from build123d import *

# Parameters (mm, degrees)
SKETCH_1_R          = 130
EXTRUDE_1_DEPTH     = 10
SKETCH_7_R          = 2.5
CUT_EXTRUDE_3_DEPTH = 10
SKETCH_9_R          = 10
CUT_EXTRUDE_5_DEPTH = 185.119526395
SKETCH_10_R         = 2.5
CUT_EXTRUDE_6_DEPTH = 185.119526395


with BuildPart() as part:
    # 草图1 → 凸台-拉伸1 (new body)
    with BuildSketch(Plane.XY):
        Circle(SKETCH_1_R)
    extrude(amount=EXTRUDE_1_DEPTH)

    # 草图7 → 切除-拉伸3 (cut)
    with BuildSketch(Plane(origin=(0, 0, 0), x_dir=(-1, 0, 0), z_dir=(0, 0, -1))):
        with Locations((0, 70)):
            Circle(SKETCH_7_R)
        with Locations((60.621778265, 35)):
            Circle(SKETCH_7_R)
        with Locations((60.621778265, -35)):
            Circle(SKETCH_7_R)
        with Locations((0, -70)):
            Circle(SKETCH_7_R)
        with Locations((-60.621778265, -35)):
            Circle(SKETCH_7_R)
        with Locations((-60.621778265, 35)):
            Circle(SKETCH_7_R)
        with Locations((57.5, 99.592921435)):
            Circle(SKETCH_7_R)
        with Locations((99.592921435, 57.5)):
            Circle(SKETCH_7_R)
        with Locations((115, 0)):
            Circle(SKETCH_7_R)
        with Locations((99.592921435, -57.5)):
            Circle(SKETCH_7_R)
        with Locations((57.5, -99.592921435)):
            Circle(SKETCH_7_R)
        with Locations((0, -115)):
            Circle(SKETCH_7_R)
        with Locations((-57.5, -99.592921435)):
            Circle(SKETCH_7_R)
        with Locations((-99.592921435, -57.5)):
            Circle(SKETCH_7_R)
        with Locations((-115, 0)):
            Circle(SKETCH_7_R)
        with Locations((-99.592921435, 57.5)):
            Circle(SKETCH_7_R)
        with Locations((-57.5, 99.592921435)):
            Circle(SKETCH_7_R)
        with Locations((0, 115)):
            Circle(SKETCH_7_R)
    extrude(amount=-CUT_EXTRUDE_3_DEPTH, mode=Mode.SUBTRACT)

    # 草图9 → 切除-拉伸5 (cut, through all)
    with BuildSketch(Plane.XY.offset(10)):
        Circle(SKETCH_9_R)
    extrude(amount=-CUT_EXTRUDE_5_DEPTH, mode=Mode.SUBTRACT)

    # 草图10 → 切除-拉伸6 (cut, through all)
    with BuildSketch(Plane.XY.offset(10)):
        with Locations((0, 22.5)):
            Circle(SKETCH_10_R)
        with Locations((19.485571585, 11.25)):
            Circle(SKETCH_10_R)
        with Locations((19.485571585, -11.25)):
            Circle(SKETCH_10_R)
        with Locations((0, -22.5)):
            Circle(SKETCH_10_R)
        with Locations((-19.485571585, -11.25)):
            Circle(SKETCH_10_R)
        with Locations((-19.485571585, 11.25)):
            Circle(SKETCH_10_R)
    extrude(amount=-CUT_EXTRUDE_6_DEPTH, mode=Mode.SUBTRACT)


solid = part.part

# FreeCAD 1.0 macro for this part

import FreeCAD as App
import Part
import Sketcher

V = App.Vector
Q = App.Units.Quantity

doc = App.newDocument("Part")
body = doc.addObject("PartDesign::Body", "Body")

# Sketch on XY plane
sketch1 = body.newObject("Sketcher::SketchObject", "Sketch")
sketch1.AttachmentSupport = (doc.getObject("XY_Plane"), [""])
sketch1.MapMode = "FlatFace"
sketch1.addGeometry(Part.Circle(V(0, 0, 0), V(0, 0, 1), 130), False)
sketch1.addConstraint(Sketcher.Constraint("Coincident", 0, 3, -1, 1))
sketch1.addConstraint(Sketcher.Constraint("Diameter", 0, Q("260 mm")))
pad1 = body.newObject("PartDesign::Pad", "Pad")
pad1.Profile = sketch1
pad1.Length = 10

# Sketch on XY plane
sketch2 = body.newObject("Sketcher::SketchObject", "Sketch001")
sketch2.AttachmentSupport = (doc.getObject("XY_Plane"), [""])
sketch2.MapMode = "FlatFace"
sketch2.addGeometry(Part.Circle(V(0, 70, 0), V(0, 0, 1), 2.5), False)
sketch2.addGeometry(Part.Circle(V(-60.6, 35, 0), V(0, 0, 1), 2.5), False)
sketch2.addGeometry(Part.Circle(V(-60.6, -35, 0), V(0, 0, 1), 2.5), False)
sketch2.addGeometry(Part.Circle(V(0, -70, 0), V(0, 0, 1), 2.5), False)
sketch2.addGeometry(Part.Circle(V(60.6, -35, 0), V(0, 0, 1), 2.5), False)
sketch2.addGeometry(Part.Circle(V(60.6, 35, 0), V(0, 0, 1), 2.5), False)
sketch2.addGeometry(Part.Circle(V(-57.5, 99.6, 0), V(0, 0, 1), 2.5), False)
sketch2.addGeometry(Part.Circle(V(-99.6, 57.5, 0), V(0, 0, 1), 2.5), False)
sketch2.addGeometry(Part.Circle(V(-115, 0, 0), V(0, 0, 1), 2.5), False)
sketch2.addGeometry(Part.Circle(V(-99.6, -57.5, 0), V(0, 0, 1), 2.5), False)
sketch2.addGeometry(Part.Circle(V(-57.5, -99.6, 0), V(0, 0, 1), 2.5), False)
sketch2.addGeometry(Part.Circle(V(0, -115, 0), V(0, 0, 1), 2.5), False)
sketch2.addGeometry(Part.Circle(V(57.5, -99.6, 0), V(0, 0, 1), 2.5), False)
sketch2.addGeometry(Part.Circle(V(99.6, -57.5, 0), V(0, 0, 1), 2.5), False)
sketch2.addGeometry(Part.Circle(V(115, 0, 0), V(0, 0, 1), 2.5), False)
sketch2.addGeometry(Part.Circle(V(99.6, 57.5, 0), V(0, 0, 1), 2.5), False)
sketch2.addGeometry(Part.Circle(V(57.5, 99.6, 0), V(0, 0, 1), 2.5), False)
sketch2.addGeometry(Part.Circle(V(0, 115, 0), V(0, 0, 1), 2.5), False)
sketch2.addConstraint(Sketcher.Constraint("Equal", 0, 1))
sketch2.addConstraint(Sketcher.Constraint("Equal", 1, 2))
sketch2.addConstraint(Sketcher.Constraint("Equal", 2, 3))
sketch2.addConstraint(Sketcher.Constraint("Equal", 3, 4))
sketch2.addConstraint(Sketcher.Constraint("Equal", 4, 5))
sketch2.addConstraint(Sketcher.Constraint("Equal", 5, 6))
sketch2.addConstraint(Sketcher.Constraint("Equal", 6, 7))
sketch2.addConstraint(Sketcher.Constraint("Equal", 7, 8))
sketch2.addConstraint(Sketcher.Constraint("Equal", 8, 9))
sketch2.addConstraint(Sketcher.Constraint("Equal", 9, 10))
sketch2.addConstraint(Sketcher.Constraint("Equal", 10, 11))
sketch2.addConstraint(Sketcher.Constraint("Equal", 11, 12))
sketch2.addConstraint(Sketcher.Constraint("Equal", 12, 13))
sketch2.addConstraint(Sketcher.Constraint("Equal", 13, 14))
sketch2.addConstraint(Sketcher.Constraint("Equal", 14, 15))
sketch2.addConstraint(Sketcher.Constraint("Equal", 15, 16))
sketch2.addConstraint(Sketcher.Constraint("Equal", 16, 17))
sketch2.addConstraint(Sketcher.Constraint("Symmetric", 0, 3, 3, 3, -1, 1))
sketch2.addConstraint(Sketcher.Constraint("Symmetric", 1, 3, 4, 3, -1, 1))
sketch2.addConstraint(Sketcher.Constraint("Symmetric", 2, 3, 5, 3, -1, 1))
sketch2.addConstraint(Sketcher.Constraint("Symmetric", 6, 3, 12, 3, -1, 1))
sketch2.addConstraint(Sketcher.Constraint("Symmetric", 7, 3, 13, 3, -1, 1))
sketch2.addConstraint(Sketcher.Constraint("Symmetric", 8, 3, 14, 3, -1, 1))
sketch2.addConstraint(Sketcher.Constraint("Symmetric", 9, 3, 15, 3, -1, 1))
sketch2.addConstraint(Sketcher.Constraint("Symmetric", 10, 3, 16, 3, -1, 1))
sketch2.addConstraint(Sketcher.Constraint("Symmetric", 11, 3, 17, 3, -1, 1))
sketch2.addConstraint(Sketcher.Constraint("Symmetric", 2, 3, 4, 3, -2))
sketch2.addConstraint(Sketcher.Constraint("Symmetric", 10, 3, 12, 3, -2))
sketch2.addConstraint(Sketcher.Constraint("Symmetric", 9, 3, 13, 3, -2))
sketch2.addConstraint(Sketcher.Constraint("PointOnObject", 0, 3, -2))
sketch2.addConstraint(Sketcher.Constraint("PointOnObject", 8, 3, -1))
sketch2.addConstraint(Sketcher.Constraint("PointOnObject", 11, 3, -2))
sketch2.addConstraint(Sketcher.Constraint("Diameter", 0, Q("5 mm")))
sketch2.addConstraint(Sketcher.Constraint("DistanceY", -1, 1, 0, 3, Q("70 mm")))
sketch2.addConstraint(Sketcher.Constraint("DistanceY", -1, 1, 1, 3, Q("35 mm")))
sketch2.addConstraint(Sketcher.Constraint("DistanceX", 8, 3, -1, 1, Q("115 mm")))
sketch2.addConstraint(Sketcher.Constraint("DistanceY", 11, 3, -1, 1, Q("115 mm")))
sketch2.addConstraint(Sketcher.Constraint("DistanceY", 9, 3, 7, 3, Q("115 mm")))
sketch2.addConstraint(Sketcher.Constraint("DistanceX", 10, 3, 12, 3, Q("115 mm")))
sketch2.addConstraint(Sketcher.Constraint("DistanceX", 1, 3, -1, 1, Q("60.621778 mm")))
sketch2.addConstraint(Sketcher.Constraint("DistanceY", -1, 1, 6, 3, Q("99.592921 mm")))
sketch2.addConstraint(Sketcher.Constraint("DistanceX", 7, 3, -1, 1, Q("99.592921 mm")))
pocket1 = body.newObject("PartDesign::Pocket", "Pocket")
pocket1.Profile = sketch2
pocket1.Length = 10
pocket1.Reversed = True

# Sketch on XY plane
sketch3 = body.newObject("Sketcher::SketchObject", "Sketch002")
sketch3.AttachmentSupport = (doc.getObject("XY_Plane"), [""])
sketch3.MapMode = "FlatFace"
sketch3.AttachmentOffset = App.Placement(V(0, 0, 10), App.Rotation())
sketch3.addGeometry(Part.Circle(V(0, 0, 0), V(0, 0, 1), 10), False)
sketch3.addConstraint(Sketcher.Constraint("Coincident", 0, 3, -1, 1))
sketch3.addConstraint(Sketcher.Constraint("Diameter", 0, Q("20 mm")))
pocket2 = body.newObject("PartDesign::Pocket", "Pocket001")
pocket2.Profile = sketch3
pocket2.Type = "ThroughAll"

# Sketch on XY plane
sketch4 = body.newObject("Sketcher::SketchObject", "Sketch003")
sketch4.AttachmentSupport = (doc.getObject("XY_Plane"), [""])
sketch4.MapMode = "FlatFace"
sketch4.AttachmentOffset = App.Placement(V(0, 0, 10), App.Rotation())
sketch4.addGeometry(Part.Circle(V(0, 22.5, 0), V(0, 0, 1), 2.5), False)
sketch4.addGeometry(Part.Circle(V(19.5, 11.2, 0), V(0, 0, 1), 2.5), False)
sketch4.addGeometry(Part.Circle(V(19.5, -11.2, 0), V(0, 0, 1), 2.5), False)
sketch4.addGeometry(Part.Circle(V(0, -22.5, 0), V(0, 0, 1), 2.5), False)
sketch4.addGeometry(Part.Circle(V(-19.5, -11.2, 0), V(0, 0, 1), 2.5), False)
sketch4.addGeometry(Part.Circle(V(-19.5, 11.2, 0), V(0, 0, 1), 2.5), False)
sketch4.addConstraint(Sketcher.Constraint("Equal", 0, 1))
sketch4.addConstraint(Sketcher.Constraint("Equal", 1, 2))
sketch4.addConstraint(Sketcher.Constraint("Equal", 2, 3))
sketch4.addConstraint(Sketcher.Constraint("Equal", 3, 4))
sketch4.addConstraint(Sketcher.Constraint("Equal", 4, 5))
sketch4.addConstraint(Sketcher.Constraint("Symmetric", 0, 3, 3, 3, -1, 1))
sketch4.addConstraint(Sketcher.Constraint("Symmetric", 1, 3, 4, 3, -1, 1))
sketch4.addConstraint(Sketcher.Constraint("Symmetric", 2, 3, 5, 3, -1, 1))
sketch4.addConstraint(Sketcher.Constraint("Symmetric", 2, 3, 4, 3, -2))
sketch4.addConstraint(Sketcher.Constraint("PointOnObject", 0, 3, -2))
sketch4.addConstraint(Sketcher.Constraint("Diameter", 0, Q("5 mm")))
sketch4.addConstraint(Sketcher.Constraint("DistanceY", 3, 3, 0, 3, Q("45 mm")))
sketch4.addConstraint(Sketcher.Constraint("DistanceY", 2, 3, 1, 3, Q("22.5 mm")))
sketch4.addConstraint(Sketcher.Constraint("DistanceX", -1, 1, 1, 3, Q("19.485572 mm")))
pocket3 = body.newObject("PartDesign::Pocket", "Pocket002")
pocket3.Profile = sketch4
pocket3.Type = "ThroughAll"

doc.recompute()
